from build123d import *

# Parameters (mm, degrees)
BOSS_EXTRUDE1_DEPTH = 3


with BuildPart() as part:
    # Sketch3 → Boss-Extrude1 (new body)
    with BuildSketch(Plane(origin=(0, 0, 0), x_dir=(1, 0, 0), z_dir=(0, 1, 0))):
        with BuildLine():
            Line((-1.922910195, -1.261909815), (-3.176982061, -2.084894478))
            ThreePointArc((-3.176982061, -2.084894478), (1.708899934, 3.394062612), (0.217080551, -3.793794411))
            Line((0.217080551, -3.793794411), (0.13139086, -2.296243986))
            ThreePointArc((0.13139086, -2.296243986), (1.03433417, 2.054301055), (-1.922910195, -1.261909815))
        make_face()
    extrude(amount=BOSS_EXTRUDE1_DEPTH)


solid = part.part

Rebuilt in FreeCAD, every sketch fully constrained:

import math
import FreeCAD as App
import Part
import Sketcher
from FreeCAD import Vector

doc = App.newDocument("Part")
params = doc.addObject("Spreadsheet::Sheet", "Params")
for row, (alias, value) in enumerate([
    ("sketch1_radius", "2.3 mm"),
    ("sketch1_radius2", "3.8 mm"),
    ("pad1_length", "3 mm"),
], start=1):
    params.set(f"A{row}", alias)
    params.set(f"B{row}", "=" + value)
    params.setAlias(f"B{row}", alias)

body = doc.addObject("PartDesign::Body", "Body")

# Sketch on XZ plane
sketch1 = body.newObject("Sketcher::SketchObject", "Sketch")
sketch1.AttachmentSupport = (doc.getObject("XZ_Plane"), [""])
sketch1.MapMode = "FlatFace"
sketch1.addGeometry([
    Part.LineSegment(Vector(-3.2, 2.1, 0), Vector(-1.9, 1.3, 0)),
    Part.ArcOfCircle(Part.Circle(Vector(0, 0, 0), Vector(0, 0, 1), 2.3), math.radians(147), math.radians(447)),
    Part.LineSegment(Vector(0.1, 2.3, 0), Vector(0.2, 3.8, 0)),
    Part.ArcOfCircle(Part.Circle(Vector(0, 0, 0), Vector(0, 0, 1), 3.8), math.radians(147), math.radians(447)),
], False)
sketch1.addConstraint([
    Sketcher.Constraint("Coincident", 0, 2, 1, 1),
    Sketcher.Constraint("Coincident", 1, 2, 2, 1),
    Sketcher.Constraint("Coincident", 2, 2, 3, 2),
    Sketcher.Constraint("Coincident", 3, 1, 0, 1),
    Sketcher.Constraint("Coincident", 1, 3, -1, 1),
    Sketcher.Constraint("Coincident", 3, 3, -1, 1),
    Sketcher.Constraint("Radius", 1, 2.3),
    Sketcher.Constraint("Radius", 3, 3.8),
    Sketcher.Constraint("DistanceX", 0, 2, 1, 2, 2.054301),
    Sketcher.Constraint("DistanceY", 3, 1, 2, 2, 1.7089),
    Sketcher.Constraint("DistanceX", 0, 2, -1, 1, 1.92291),
    Sketcher.Constraint("DistanceX", -1, 1, 2, 2, 0.217081),
])
sketch1.setExpression("Constraints[6]", "Params.sketch1_radius")
sketch1.setExpression("Constraints[7]", "Params.sketch1_radius2")
pad1 = body.newObject("PartDesign::Pad", "Pad")
pad1.Profile = sketch1
pad1.setExpression("Length", "Params.pad1_length")
pad1.Reversed = True

doc.recompute()
